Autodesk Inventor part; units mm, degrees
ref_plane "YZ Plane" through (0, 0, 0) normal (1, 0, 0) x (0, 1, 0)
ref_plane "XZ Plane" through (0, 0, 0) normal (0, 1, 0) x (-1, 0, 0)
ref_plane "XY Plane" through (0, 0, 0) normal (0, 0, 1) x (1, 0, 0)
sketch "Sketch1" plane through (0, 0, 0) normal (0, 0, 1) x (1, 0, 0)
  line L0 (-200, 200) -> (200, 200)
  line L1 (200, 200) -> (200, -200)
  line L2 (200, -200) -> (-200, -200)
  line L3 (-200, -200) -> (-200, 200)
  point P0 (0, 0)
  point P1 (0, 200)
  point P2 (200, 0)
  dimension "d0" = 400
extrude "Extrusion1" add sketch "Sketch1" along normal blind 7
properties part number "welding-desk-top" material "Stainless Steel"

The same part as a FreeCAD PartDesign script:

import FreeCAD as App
import Part
import Sketcher


def add_polygon(sketch, points):
    """Adds a closed chain of lines whose ends are joined by coincident constraints."""
    first, n = sketch.GeometryCount, len(points)
    for a, b in zip(points, points[1:] + points[:1]):
        sketch.addGeometry(Part.LineSegment(App.Vector(*a, 0), App.Vector(*b, 0)), False)
    for i in range(n):
        sketch.addConstraint(Sketcher.Constraint("Coincident", first + i, 2, first + (i + 1) % n, 1))

doc = App.newDocument("Part")
body = doc.addObject("PartDesign::Body", "Body")

# Sketch on XY plane
sketch1 = doc.addObject("Sketcher::SketchObject", "Sketch")
body.addObject(sketch1)
sketch1.AttachmentSupport = (doc.XY_Plane, [""])
sketch1.MapMode = "FlatFace"
add_polygon(sketch1, [(200, 200), (-200, 200), (-200, -200), (200, -200)])  # lines 0-3
sketch1.addConstraint(Sketcher.Constraint("Horizontal", 0))
sketch1.addConstraint(Sketcher.Constraint("Vertical", 1))
sketch1.addConstraint(Sketcher.Constraint("Horizontal", 2))
sketch1.addConstraint(Sketcher.Constraint("Vertical", 3))
sketch1.addConstraint(Sketcher.Constraint("Symmetric", 0, 2, 2, 2, -1, 1))
sketch1.addConstraint(Sketcher.Constraint("Equal", 2, 1))
sketch1.addConstraint(Sketcher.Constraint("DistanceX", 0, 2, 0, 1, 400.0))
pad1 = doc.addObject("PartDesign::Pad", "Pad")
body.addObject(pad1)
pad1.Profile = sketch1
pad1.Length = 7

doc.recompute()
